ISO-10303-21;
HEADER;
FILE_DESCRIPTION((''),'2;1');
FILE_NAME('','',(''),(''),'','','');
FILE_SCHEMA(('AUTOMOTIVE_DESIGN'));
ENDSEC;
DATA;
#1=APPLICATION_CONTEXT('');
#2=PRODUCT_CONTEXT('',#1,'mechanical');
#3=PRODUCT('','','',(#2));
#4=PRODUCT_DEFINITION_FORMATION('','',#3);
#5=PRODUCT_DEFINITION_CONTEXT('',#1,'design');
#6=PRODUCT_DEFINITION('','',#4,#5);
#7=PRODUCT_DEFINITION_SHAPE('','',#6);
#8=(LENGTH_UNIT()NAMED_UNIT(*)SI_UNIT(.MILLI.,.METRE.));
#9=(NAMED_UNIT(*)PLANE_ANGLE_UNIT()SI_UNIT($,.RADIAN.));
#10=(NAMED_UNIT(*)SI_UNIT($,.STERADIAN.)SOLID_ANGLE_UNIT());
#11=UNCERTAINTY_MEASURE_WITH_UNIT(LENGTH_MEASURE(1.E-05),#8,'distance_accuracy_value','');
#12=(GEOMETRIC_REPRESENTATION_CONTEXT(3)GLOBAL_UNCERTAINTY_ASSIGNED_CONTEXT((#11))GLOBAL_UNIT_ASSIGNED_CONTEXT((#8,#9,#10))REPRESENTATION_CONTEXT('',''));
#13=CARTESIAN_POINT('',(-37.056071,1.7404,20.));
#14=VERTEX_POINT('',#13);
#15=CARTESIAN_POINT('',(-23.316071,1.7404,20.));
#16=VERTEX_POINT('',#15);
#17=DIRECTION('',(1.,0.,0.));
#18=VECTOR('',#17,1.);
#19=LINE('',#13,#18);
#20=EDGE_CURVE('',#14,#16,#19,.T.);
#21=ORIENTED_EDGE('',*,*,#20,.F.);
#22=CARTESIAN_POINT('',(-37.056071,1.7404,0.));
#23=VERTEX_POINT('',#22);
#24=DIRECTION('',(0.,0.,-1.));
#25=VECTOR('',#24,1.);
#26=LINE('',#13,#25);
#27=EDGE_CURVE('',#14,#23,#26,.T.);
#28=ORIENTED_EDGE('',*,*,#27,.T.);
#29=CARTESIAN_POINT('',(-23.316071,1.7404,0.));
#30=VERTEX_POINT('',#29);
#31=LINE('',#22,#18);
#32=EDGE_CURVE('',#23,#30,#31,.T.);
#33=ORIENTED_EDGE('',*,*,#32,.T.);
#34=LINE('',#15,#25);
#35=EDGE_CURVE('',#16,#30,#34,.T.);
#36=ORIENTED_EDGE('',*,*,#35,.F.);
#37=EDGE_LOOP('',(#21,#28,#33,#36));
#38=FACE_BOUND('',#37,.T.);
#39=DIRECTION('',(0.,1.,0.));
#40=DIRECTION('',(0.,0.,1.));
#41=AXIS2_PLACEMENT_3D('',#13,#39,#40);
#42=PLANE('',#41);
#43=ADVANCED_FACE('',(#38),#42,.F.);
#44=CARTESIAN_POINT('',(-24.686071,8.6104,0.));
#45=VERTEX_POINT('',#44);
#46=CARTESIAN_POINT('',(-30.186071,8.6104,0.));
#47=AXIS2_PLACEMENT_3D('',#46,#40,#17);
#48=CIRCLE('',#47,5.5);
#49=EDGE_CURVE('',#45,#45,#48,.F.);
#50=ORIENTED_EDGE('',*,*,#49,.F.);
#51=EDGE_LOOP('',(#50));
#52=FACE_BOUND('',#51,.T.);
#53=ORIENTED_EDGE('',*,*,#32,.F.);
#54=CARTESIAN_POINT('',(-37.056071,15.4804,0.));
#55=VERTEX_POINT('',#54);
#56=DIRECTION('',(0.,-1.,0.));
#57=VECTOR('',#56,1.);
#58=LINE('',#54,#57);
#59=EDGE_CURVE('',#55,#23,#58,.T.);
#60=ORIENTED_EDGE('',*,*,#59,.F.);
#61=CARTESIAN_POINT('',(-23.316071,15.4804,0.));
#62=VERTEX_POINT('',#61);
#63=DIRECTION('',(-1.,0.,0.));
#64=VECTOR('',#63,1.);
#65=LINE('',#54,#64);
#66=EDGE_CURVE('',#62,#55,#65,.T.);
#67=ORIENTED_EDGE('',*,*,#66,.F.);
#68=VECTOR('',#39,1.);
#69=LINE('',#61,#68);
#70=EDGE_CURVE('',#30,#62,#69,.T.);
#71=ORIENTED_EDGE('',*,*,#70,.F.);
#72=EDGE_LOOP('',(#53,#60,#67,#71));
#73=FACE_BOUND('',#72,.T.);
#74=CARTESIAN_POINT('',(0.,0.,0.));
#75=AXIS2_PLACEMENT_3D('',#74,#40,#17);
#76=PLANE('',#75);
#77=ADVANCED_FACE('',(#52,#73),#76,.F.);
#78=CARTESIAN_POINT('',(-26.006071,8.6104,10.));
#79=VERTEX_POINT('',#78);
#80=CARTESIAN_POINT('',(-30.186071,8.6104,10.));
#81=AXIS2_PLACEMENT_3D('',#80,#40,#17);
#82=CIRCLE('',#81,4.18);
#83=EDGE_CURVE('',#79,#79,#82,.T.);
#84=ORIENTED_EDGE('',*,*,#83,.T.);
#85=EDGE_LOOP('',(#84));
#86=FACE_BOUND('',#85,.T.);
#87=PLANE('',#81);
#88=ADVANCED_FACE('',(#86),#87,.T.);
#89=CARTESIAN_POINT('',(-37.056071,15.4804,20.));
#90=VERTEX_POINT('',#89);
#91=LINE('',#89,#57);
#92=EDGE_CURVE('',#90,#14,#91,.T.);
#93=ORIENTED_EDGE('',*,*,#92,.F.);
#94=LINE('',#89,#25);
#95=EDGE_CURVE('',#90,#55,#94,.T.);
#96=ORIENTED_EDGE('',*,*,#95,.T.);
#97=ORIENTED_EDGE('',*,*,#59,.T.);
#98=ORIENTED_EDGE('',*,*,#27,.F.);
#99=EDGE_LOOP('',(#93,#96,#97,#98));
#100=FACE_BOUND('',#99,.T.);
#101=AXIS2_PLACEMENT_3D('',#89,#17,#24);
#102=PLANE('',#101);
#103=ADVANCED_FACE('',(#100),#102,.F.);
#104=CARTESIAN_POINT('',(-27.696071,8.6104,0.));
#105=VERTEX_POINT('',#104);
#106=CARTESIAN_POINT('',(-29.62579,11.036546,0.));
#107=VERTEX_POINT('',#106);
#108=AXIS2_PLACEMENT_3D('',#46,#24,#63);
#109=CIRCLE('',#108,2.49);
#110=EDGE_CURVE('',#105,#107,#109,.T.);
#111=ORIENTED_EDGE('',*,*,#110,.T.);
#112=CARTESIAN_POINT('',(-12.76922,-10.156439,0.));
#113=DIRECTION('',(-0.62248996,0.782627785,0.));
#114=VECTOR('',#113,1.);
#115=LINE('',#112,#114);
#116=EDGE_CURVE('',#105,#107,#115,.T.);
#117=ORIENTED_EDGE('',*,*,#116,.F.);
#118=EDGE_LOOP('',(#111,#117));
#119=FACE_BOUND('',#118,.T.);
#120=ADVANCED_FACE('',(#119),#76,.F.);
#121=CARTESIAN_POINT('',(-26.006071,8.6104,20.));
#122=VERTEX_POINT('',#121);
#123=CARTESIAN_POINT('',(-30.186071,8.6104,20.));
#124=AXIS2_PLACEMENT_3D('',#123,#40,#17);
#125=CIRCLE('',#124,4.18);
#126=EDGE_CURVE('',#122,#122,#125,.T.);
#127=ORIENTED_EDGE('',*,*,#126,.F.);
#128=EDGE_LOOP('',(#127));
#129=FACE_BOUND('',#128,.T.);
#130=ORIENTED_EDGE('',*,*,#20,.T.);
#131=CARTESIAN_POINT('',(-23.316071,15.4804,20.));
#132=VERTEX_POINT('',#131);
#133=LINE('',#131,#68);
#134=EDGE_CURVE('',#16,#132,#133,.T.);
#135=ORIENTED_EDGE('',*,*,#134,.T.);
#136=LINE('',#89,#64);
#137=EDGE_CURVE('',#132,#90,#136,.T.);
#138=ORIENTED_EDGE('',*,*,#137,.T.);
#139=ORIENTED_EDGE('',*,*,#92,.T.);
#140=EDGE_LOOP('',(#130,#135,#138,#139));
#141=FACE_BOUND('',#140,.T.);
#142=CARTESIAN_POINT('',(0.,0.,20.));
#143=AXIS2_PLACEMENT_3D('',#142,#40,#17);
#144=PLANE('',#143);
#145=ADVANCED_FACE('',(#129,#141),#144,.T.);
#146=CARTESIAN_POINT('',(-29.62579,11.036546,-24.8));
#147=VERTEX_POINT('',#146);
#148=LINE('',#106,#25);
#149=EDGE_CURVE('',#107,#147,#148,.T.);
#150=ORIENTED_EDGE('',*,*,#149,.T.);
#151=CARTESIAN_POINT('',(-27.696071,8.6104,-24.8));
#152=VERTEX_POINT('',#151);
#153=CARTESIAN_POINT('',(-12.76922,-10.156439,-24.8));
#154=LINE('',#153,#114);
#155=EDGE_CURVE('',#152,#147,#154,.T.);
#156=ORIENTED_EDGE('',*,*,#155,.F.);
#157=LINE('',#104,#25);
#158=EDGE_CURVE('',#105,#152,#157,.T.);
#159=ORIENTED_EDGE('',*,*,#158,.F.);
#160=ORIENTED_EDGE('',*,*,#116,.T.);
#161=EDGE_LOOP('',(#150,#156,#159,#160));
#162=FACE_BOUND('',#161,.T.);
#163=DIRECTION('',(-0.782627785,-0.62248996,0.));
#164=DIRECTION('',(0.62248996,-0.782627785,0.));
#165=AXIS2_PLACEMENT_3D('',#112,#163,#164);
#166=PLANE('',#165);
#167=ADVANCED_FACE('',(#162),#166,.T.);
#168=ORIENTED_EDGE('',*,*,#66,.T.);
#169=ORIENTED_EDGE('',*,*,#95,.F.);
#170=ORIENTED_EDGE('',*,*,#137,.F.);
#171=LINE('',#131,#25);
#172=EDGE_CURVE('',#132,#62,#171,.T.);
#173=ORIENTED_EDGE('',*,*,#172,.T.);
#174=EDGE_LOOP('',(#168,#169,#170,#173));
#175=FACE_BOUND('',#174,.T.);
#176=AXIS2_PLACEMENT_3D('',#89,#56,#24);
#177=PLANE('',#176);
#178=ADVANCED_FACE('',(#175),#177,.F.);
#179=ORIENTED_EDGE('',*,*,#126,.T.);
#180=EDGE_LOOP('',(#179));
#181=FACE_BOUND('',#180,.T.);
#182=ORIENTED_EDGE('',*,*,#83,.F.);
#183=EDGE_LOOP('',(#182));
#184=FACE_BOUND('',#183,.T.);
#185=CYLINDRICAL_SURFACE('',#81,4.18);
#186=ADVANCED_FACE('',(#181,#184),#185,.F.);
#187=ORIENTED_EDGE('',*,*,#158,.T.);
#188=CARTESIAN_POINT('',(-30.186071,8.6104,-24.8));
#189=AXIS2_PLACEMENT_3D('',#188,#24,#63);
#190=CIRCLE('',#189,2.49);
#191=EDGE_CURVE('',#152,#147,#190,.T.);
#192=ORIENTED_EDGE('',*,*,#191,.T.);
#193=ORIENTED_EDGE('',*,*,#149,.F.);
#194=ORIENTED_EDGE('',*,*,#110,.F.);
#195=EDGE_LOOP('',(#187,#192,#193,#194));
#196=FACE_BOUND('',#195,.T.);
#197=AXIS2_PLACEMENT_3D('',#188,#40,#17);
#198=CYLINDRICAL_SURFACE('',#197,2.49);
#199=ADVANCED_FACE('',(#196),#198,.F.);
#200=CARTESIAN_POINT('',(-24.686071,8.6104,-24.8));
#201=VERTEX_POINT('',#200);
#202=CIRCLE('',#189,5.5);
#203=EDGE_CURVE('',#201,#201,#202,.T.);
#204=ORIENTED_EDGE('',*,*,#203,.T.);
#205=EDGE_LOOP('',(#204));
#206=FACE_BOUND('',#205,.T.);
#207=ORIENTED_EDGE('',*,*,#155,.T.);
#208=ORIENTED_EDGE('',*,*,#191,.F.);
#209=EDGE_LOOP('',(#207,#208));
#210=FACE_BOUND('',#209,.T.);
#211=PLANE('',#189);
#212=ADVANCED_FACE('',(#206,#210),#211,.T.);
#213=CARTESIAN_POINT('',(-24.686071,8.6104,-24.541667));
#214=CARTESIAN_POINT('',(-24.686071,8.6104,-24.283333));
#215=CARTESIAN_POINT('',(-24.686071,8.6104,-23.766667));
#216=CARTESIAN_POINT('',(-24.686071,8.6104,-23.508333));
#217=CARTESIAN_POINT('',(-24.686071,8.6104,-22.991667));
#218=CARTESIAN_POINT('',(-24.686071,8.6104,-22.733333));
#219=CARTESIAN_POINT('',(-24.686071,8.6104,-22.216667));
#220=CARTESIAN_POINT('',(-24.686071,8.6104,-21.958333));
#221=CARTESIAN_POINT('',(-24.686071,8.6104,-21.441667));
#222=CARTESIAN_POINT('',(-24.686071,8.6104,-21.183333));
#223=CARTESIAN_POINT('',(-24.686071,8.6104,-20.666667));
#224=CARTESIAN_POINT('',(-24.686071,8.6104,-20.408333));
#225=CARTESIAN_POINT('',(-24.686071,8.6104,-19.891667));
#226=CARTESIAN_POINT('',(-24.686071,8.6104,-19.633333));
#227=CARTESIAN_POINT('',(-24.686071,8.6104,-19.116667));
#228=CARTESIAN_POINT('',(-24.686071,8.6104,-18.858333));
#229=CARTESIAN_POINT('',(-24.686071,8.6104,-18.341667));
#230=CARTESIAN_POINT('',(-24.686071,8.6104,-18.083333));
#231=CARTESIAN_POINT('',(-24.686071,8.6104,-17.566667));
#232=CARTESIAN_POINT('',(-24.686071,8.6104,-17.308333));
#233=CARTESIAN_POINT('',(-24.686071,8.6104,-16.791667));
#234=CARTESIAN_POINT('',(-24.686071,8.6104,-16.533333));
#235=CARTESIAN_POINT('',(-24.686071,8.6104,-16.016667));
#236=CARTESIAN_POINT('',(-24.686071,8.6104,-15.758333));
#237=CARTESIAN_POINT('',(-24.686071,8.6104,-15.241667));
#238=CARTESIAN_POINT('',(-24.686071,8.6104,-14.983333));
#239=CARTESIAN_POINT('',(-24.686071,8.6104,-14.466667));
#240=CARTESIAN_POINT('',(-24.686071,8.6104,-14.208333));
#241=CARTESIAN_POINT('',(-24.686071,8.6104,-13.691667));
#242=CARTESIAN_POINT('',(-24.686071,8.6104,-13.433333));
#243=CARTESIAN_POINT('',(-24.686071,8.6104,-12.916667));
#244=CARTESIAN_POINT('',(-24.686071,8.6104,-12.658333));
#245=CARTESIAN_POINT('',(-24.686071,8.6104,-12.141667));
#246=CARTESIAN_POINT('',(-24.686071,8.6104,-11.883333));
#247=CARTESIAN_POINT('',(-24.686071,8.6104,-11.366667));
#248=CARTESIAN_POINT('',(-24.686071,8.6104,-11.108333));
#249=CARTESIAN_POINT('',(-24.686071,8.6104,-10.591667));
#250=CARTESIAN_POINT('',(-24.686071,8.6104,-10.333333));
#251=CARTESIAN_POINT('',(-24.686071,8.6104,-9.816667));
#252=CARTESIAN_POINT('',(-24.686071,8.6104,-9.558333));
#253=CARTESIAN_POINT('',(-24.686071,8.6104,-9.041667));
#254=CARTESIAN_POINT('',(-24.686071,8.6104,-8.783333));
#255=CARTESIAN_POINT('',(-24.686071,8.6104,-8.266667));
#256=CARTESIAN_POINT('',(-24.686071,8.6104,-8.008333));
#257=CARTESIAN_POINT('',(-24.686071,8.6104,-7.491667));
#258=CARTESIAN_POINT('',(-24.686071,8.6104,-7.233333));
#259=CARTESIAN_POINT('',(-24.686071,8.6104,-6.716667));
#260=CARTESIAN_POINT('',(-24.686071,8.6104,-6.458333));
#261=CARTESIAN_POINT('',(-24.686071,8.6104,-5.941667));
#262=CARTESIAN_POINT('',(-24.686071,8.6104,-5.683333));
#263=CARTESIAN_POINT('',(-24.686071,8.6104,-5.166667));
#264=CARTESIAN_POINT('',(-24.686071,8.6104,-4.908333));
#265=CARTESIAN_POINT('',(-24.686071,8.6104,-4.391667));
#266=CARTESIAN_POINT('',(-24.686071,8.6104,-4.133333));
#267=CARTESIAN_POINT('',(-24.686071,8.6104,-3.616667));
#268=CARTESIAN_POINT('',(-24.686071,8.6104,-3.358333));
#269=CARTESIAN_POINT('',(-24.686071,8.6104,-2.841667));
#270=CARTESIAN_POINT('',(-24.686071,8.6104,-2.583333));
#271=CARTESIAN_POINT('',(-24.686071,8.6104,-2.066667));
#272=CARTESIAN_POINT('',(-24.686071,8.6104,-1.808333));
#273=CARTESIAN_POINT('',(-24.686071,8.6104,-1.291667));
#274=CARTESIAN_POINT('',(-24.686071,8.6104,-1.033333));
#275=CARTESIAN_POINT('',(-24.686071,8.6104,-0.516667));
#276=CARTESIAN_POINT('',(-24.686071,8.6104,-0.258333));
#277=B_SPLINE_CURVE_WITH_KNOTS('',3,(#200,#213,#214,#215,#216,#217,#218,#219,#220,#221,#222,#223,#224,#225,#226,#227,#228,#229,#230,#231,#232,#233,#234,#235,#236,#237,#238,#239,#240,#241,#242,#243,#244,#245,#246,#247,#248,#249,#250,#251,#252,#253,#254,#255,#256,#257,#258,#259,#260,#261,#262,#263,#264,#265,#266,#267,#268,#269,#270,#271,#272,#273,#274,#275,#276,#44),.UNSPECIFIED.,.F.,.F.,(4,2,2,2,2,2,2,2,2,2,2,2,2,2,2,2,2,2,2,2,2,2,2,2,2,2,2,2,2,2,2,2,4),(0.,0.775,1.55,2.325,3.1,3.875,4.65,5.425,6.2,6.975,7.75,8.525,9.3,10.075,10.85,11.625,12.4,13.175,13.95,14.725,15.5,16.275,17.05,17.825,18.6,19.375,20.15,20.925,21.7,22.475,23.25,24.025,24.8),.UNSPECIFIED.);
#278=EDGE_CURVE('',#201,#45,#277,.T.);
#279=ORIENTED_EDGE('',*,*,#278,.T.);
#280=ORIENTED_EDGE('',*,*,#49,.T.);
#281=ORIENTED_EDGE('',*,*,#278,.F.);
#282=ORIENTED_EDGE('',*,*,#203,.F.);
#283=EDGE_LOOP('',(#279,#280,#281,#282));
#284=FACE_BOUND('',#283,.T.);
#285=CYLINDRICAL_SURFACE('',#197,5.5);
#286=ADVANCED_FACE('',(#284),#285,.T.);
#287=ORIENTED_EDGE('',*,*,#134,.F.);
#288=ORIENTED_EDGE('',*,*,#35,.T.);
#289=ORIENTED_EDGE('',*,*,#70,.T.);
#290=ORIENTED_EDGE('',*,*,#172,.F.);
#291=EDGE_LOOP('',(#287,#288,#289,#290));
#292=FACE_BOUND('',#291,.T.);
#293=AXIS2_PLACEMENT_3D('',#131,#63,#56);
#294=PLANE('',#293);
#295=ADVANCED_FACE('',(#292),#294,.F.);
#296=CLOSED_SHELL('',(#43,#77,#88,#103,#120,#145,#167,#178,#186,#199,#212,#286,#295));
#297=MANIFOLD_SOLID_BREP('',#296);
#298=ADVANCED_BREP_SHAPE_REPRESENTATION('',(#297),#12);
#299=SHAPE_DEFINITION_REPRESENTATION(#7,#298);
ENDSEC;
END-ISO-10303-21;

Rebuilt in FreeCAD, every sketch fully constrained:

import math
import FreeCAD as App
import Part
import Sketcher

V = App.Vector

doc = App.newDocument("Part")
body = doc.addObject("PartDesign::Body", "Body")

# Sketch on XY plane
sketch1 = body.newObject("Sketcher::SketchObject", "Sketch")
sketch1.AttachmentSupport = (doc.getObject("XY_Plane"), [""])
sketch1.MapMode = "FlatFace"
sketch1.addGeometry(Part.LineSegment(V(-37, 15, 0), V(-37, 2, 0)), False)
sketch1.addGeometry(Part.LineSegment(V(-37, 2, 0), V(-23, 2, 0)), False)
sketch1.addGeometry(Part.LineSegment(V(-23, 2, 0), V(-23, 15, 0)), False)
sketch1.addGeometry(Part.LineSegment(V(-23, 15, 0), V(-37, 15, 0)), False)
sketch1.addConstraint(Sketcher.Constraint("Coincident", 0, 2, 1, 1))
sketch1.addConstraint(Sketcher.Constraint("Coincident", 1, 2, 2, 1))
sketch1.addConstraint(Sketcher.Constraint("Coincident", 2, 2, 3, 1))
sketch1.addConstraint(Sketcher.Constraint("Coincident", 3, 2, 0, 1))
sketch1.addConstraint(Sketcher.Constraint("Vertical", 0))
sketch1.addConstraint(Sketcher.Constraint("Horizontal", 1))
sketch1.addConstraint(Sketcher.Constraint("Vertical", 2))
sketch1.addConstraint(Sketcher.Constraint("Horizontal", 3))
sketch1.addConstraint(Sketcher.Constraint("Equal", 3, 0))
sketch1.addConstraint(Sketcher.Constraint("DistanceX", 1, 1, 1, 2, 13.74))
sketch1.addConstraint(Sketcher.Constraint("DistanceY", -1, 1, 0, 2, 1.7404))
sketch1.addConstraint(Sketcher.Constraint("DistanceX", 0, 2, -1, 1, 37.056071))
pad1 = body.newObject("PartDesign::Pad", "Pad")
pad1.Profile = sketch1
pad1.Length = 20

# Sketch on XY plane
sketch2 = body.newObject("Sketcher::SketchObject", "Sketch001")
sketch2.AttachmentSupport = (doc.getObject("XY_Plane"), [""])
sketch2.MapMode = "FlatFace"
sketch2.AttachmentOffset = App.Placement(V(0, 0, 20), App.Rotation())
sketch2.addGeometry(Part.Circle(V(-30.2, 8.6, 0), V(0, 0, 1), 4.2), False)
sketch2.addConstraint(Sketcher.Constraint("Diameter", 0, 8.36))
sketch2.addConstraint(Sketcher.Constraint("DistanceY", -1, 1, 0, 3, 8.6104))
sketch2.addConstraint(Sketcher.Constraint("DistanceX", 0, 3, -1, 1, 30.186071))
pocket1 = body.newObject("PartDesign::Pocket", "Pocket")
pocket1.Profile = sketch2
pocket1.Length = 10

# Sketch on XY plane
sketch3 = body.newObject("Sketcher::SketchObject", "Sketch002")
sketch3.AttachmentSupport = (doc.getObject("XY_Plane"), [""])
sketch3.MapMode = "FlatFace"
sketch3.addGeometry(Part.Circle(V(-30.2, 8.6, 0), V(0, 0, 1), 2.5), False)
sketch3.addConstraint(Sketcher.Constraint("Diameter", 0, 4.98))
sketch3.addConstraint(Sketcher.Constraint("DistanceY", -1, 1, 0, 3, 8.6104))
sketch3.addConstraint(Sketcher.Constraint("DistanceX", 0, 3, -1, 1, 30.186071))
pad2 = body.newObject("PartDesign::Pad", "Pad001")
pad2.Profile = sketch3
pad2.Length = 24.8
pad2.Reversed = True

# Sketch on XY plane
sketch4 = body.newObject("Sketcher::SketchObject", "Sketch003")
sketch4.AttachmentSupport = (doc.getObject("XY_Plane"), [""])
sketch4.MapMode = "FlatFace"
sketch4.addGeometry(Part.LineSegment(V(-29.6, 11, 0), V(-27.7, 8.6, 0)), False)
sketch4.addGeometry(Part.ArcOfCircle(Part.Circle(V(-30.2, 8.6, 0), V(0, 0, 1), 2.5), math.radians(77), math.radians(360)), False)
sketch4.addConstraint(Sketcher.Constraint("Coincident", 0, 1, 1, 1))
sketch4.addConstraint(Sketcher.Constraint("Coincident", 1, 2, 0, 2))
sketch4.addConstraint(Sketcher.Constraint("Radius", 1, 2.49))
sketch4.addConstraint(Sketcher.Constraint("Distance", 0, 3.1))
sketch4.addConstraint(Sketcher.Constraint("DistanceY", -1, 1, 1, 3, 8.6104))
sketch4.addConstraint(Sketcher.Constraint("DistanceY", -1, 1, 1, 2, 8.6104))
sketch4.addConstraint(Sketcher.Constraint("DistanceX", 1, 3, -1, 1, 30.186071))
pocket2 = body.newObject("PartDesign::Pocket", "Pocket001")
pocket2.Profile = sketch4
pocket2.Length = 24.8

# Sketch on XY plane
sketch5 = body.newObject("Sketcher::SketchObject", "Sketch004")
sketch5.AttachmentSupport = (doc.getObject("XY_Plane"), [""])
sketch5.MapMode = "FlatFace"
sketch5.addGeometry(Part.Circle(V(-30.2, 8.6, 0), V(0, 0, 1), 5.5), False)
sketch5.addGeometry(Part.Circle(V(-30.2, 8.6, 0), V(0, 0, 1), 2.5), False)
sketch5.addConstraint(Sketcher.Constraint("Coincident", 1, 3, 0, 3))
sketch5.addConstraint(Sketcher.Constraint("Diameter", 0, 11.0))
sketch5.addConstraint(Sketcher.Constraint("Diameter", 1, 4.98))
sketch5.addConstraint(Sketcher.Constraint("DistanceY", -1, 1, 0, 3, 8.6104))
sketch5.addConstraint(Sketcher.Constraint("DistanceX", 0, 3, -1, 1, 30.186071))
pad3 = body.newObject("PartDesign::Pad", "Pad002")
pad3.Profile = sketch5
pad3.Length = 24.8
pad3.Reversed = True

doc.recompute()
